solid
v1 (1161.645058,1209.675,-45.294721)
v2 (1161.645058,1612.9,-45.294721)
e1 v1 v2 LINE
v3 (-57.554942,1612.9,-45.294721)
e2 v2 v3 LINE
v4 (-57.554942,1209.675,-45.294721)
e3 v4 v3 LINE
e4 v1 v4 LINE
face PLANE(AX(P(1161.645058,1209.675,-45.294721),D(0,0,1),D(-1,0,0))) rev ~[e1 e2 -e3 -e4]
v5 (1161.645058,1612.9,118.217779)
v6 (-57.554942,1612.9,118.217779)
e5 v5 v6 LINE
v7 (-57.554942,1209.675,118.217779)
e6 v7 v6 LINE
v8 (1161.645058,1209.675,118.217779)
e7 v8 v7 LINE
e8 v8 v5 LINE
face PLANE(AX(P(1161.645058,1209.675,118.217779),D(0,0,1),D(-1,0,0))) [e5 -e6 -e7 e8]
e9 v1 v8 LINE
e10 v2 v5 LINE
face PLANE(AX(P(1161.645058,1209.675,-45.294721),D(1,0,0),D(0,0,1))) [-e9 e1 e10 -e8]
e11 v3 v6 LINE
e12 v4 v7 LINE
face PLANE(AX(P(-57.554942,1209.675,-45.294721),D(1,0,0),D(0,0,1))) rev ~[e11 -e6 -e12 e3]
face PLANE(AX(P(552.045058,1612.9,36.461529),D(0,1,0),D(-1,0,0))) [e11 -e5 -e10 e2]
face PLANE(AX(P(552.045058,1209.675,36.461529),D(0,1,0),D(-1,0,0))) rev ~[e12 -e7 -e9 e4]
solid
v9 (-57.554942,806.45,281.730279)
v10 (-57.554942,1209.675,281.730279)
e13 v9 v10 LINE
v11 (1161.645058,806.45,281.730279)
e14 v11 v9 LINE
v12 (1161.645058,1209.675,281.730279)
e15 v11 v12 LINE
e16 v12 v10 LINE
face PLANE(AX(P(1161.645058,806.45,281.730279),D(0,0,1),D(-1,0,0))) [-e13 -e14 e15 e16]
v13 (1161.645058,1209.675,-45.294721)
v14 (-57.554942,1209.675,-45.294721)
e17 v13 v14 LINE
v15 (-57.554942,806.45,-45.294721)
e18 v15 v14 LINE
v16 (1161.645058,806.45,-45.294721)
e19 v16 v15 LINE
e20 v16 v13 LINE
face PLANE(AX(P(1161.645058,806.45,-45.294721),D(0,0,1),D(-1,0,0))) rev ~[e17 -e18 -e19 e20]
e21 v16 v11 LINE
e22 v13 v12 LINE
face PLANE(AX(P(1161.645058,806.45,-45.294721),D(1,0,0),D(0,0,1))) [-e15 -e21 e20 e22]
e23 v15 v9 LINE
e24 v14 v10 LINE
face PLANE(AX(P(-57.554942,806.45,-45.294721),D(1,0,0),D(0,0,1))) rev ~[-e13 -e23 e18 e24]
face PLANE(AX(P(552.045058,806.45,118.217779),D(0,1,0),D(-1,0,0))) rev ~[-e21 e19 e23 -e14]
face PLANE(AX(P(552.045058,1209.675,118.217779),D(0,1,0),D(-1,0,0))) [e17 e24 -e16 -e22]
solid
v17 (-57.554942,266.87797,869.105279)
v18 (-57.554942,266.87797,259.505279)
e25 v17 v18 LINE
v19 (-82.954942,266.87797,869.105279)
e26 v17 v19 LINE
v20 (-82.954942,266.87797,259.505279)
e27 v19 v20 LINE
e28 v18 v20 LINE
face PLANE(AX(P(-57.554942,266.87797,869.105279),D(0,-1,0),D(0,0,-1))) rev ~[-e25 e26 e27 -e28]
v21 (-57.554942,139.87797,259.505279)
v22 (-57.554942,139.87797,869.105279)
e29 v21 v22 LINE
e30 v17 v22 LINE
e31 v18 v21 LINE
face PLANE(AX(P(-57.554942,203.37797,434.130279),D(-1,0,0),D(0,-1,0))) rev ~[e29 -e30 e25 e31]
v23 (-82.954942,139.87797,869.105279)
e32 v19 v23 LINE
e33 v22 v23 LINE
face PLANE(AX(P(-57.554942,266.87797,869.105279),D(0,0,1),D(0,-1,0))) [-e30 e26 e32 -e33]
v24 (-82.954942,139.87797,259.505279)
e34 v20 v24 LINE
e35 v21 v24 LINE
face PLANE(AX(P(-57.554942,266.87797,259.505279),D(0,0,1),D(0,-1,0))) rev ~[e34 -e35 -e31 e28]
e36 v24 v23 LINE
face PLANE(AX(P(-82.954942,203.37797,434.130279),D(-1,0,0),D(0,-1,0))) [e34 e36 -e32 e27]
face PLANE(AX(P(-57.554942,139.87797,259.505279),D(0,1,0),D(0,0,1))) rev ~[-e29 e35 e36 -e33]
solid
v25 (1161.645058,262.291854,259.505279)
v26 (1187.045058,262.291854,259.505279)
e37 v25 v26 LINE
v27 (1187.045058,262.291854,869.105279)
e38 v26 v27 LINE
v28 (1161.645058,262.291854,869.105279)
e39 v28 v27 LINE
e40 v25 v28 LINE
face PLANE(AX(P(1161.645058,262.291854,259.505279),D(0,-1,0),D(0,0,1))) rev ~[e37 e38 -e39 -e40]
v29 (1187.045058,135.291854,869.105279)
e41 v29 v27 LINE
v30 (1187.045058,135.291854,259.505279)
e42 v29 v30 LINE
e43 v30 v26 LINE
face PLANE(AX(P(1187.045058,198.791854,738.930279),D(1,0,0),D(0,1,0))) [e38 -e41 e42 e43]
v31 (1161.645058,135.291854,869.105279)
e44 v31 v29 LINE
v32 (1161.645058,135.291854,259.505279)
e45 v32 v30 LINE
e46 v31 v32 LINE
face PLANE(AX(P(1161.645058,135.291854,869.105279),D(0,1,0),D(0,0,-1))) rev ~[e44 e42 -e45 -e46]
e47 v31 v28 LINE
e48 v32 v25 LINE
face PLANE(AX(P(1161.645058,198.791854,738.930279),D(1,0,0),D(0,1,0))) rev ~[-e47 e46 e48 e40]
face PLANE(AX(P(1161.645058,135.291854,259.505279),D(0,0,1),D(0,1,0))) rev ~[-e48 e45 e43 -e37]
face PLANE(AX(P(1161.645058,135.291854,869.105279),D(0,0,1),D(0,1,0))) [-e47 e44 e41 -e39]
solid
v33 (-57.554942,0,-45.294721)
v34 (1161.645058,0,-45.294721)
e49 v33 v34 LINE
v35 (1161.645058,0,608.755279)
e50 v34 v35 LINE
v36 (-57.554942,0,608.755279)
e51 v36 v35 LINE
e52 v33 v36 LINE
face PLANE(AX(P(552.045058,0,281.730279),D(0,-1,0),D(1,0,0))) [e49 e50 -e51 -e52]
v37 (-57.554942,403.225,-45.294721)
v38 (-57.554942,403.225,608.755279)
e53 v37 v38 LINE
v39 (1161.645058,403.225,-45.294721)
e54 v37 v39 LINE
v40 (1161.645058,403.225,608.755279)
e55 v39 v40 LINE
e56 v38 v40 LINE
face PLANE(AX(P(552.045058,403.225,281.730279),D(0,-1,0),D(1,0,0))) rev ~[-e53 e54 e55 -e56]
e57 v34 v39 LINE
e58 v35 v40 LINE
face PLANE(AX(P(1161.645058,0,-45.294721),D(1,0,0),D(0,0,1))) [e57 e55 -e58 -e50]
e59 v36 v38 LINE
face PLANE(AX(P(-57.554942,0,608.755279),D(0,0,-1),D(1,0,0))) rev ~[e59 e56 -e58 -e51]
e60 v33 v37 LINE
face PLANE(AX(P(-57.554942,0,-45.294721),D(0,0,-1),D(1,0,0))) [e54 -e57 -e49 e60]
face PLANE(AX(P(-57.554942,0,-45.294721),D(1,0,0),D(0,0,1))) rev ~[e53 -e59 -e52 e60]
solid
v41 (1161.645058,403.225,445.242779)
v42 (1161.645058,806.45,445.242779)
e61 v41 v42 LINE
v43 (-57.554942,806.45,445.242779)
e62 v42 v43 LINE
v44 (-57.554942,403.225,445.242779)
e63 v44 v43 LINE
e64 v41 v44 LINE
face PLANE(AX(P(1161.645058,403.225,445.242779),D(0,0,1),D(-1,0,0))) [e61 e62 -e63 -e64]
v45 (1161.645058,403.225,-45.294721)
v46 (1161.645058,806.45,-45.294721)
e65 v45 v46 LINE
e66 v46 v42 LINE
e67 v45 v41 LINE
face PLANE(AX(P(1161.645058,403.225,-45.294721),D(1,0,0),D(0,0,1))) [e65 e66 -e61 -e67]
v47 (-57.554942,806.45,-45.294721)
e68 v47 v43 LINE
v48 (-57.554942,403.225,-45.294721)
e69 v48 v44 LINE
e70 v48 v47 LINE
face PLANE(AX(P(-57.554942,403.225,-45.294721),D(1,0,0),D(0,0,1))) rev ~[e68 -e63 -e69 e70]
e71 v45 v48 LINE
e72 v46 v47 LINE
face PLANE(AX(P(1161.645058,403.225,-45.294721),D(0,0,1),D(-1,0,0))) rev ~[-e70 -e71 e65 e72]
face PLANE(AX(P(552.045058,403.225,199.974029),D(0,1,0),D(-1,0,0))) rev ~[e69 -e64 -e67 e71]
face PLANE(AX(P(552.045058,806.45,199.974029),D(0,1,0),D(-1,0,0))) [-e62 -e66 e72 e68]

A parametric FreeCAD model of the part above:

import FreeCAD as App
import Part
import Sketcher
Q = App.Units.Quantity


def add_polygon(sketch, points):
    """Adds a closed chain of lines whose ends are joined by coincident constraints."""
    first, n = sketch.GeometryCount, len(points)
    for a, b in zip(points, points[1:] + points[:1]):
        sketch.addGeometry(Part.LineSegment(App.Vector(*a, 0), App.Vector(*b, 0)), False)
    for i in range(n):
        sketch.addConstraint(Sketcher.Constraint("Coincident", first + i, 2, first + (i + 1) % n, 1))

doc = App.newDocument("Part")
params = doc.addObject("Spreadsheet::Sheet", "Params")
for row, (alias, value) in enumerate([
    ("sketch1_width", "48 in"),
    ("sketch1_height", "25.75 in"),
    ("pad1_length", "15.875 in"),
    ("sketch2_width", "48 in"),
    ("sketch2_height", "19.3125 in"),
    ("pad2_length", "15.875 in"),
    ("sketch3_width", "48 in"),
    ("sketch3_height", "12.875 in"),
    ("pad3_length", "15.875 in"),
    ("sketch4_width", "48 in"),
    ("sketch4_height", "6.4375 in"),
    ("pad4_length", "15.875 in"),
    ("sketch5_width", "5 in"),
    ("sketch5_height", "24 in"),
    ("pad5_length", "1 in"),
    ("sketch6_width", "5 in"),
    ("sketch6_height", "24 in"),
    ("pad6_length", "1 in"),
], start=1):
    params.set(f"A{row}", alias)
    params.set(f"B{row}", "=" + value)
    params.setAlias(f"B{row}", alias)

body = doc.addObject("PartDesign::Body", "Body")

# Sketch on XZ plane
sketch1 = body.newObject("Sketcher::SketchObject", "Sketch")
sketch1.AttachmentSupport = (doc.getObject("XZ_Plane"), [""])
sketch1.MapMode = "FlatFace"
add_polygon(sketch1, [(-58, 609), (-58, -45), (1162, -45), (1162, 609)])  # lines 0-3
sketch1.addConstraint([
    Sketcher.Constraint("Vertical", 0),
    Sketcher.Constraint("Horizontal", 1),
    Sketcher.Constraint("Vertical", 2),
    Sketcher.Constraint("Horizontal", 3),
    Sketcher.Constraint("DistanceX", 1, 1, 1, 2, Q("48 in")),
    Sketcher.Constraint("DistanceY", 0, 2, 0, 1, Q("25.75 in")),
    Sketcher.Constraint("DistanceX", 0, 2, -1, 1, Q("57.554942 mm")),
    Sketcher.Constraint("DistanceY", 0, 2, -1, 1, Q("45.294721 mm")),
])
sketch1.setExpression("Constraints[8]", "Params.sketch1_width")
sketch1.setExpression("Constraints[9]", "Params.sketch1_height")
pad1 = body.newObject("PartDesign::Pad", "Pad")
pad1.Profile = sketch1
pad1.setExpression("Length", "Params.pad1_length")
pad1.Reversed = True
body2 = doc.addObject("PartDesign::Body", "Body001")

# Sketch on XZ plane
sketch2 = body2.newObject("Sketcher::SketchObject", "Sketch001")
sketch2.AttachmentSupport = (doc.getObject("XZ_Plane001"), [""])
sketch2.MapMode = "FlatFace"
sketch2.AttachmentOffset = App.Placement(App.Vector(0, 0, -15.875 * 25.4), App.Rotation())
add_polygon(sketch2, [(1162, 445), (1162, -45), (-58, -45), (-58, 445)])  # lines 0-3
sketch2.addConstraint([
    Sketcher.Constraint("Vertical", 0),
    Sketcher.Constraint("Horizontal", 1),
    Sketcher.Constraint("Vertical", 2),
    Sketcher.Constraint("Horizontal", 3),
    Sketcher.Constraint("DistanceX", 1, 2, 1, 1, Q("48 in")),
    Sketcher.Constraint("DistanceY", 0, 2, 0, 1, Q("19.3125 in")),
    Sketcher.Constraint("DistanceX", -1, 1, 0, 2, Q("1161.645058 mm")),
    Sketcher.Constraint("DistanceY", 0, 2, -1, 1, Q("45.294721 mm")),
])
sketch2.setExpression("Constraints[8]", "Params.sketch2_width")
sketch2.setExpression("Constraints[9]", "Params.sketch2_height")
pad2 = body2.newObject("PartDesign::Pad", "Pad001")
pad2.Profile = sketch2
pad2.setExpression("Length", "Params.pad2_length")
pad2.Reversed = True
body3 = doc.addObject("PartDesign::Body", "Body002")

# Sketch on XZ plane
sketch3 = body3.newObject("Sketcher::SketchObject", "Sketch002")
sketch3.AttachmentSupport = (doc.getObject("XZ_Plane002"), [""])
sketch3.MapMode = "FlatFace"
sketch3.AttachmentOffset = App.Placement(App.Vector(0, 0, -31.75 * 25.4), App.Rotation())
add_polygon(sketch3, [(1162, 282), (1162, -45), (-58, -45), (-58, 282)])  # lines 0-3
sketch3.addConstraint([
    Sketcher.Constraint("Vertical", 0),
    Sketcher.Constraint("Horizontal", 1),
    Sketcher.Constraint("Vertical", 2),
    Sketcher.Constraint("Horizontal", 3),
    Sketcher.Constraint("DistanceX", 1, 2, 1, 1, Q("48 in")),
    Sketcher.Constraint("DistanceY", 0, 2, 0, 1, Q("12.875 in")),
    Sketcher.Constraint("DistanceX", -1, 1, 0, 2, Q("1161.645058 mm")),
    Sketcher.Constraint("DistanceY", 0, 2, -1, 1, Q("45.294721 mm")),
])
sketch3.setExpression("Constraints[8]", "Params.sketch3_width")
sketch3.setExpression("Constraints[9]", "Params.sketch3_height")
pad3 = body3.newObject("PartDesign::Pad", "Pad002")
pad3.Profile = sketch3
pad3.setExpression("Length", "Params.pad3_length")
pad3.Reversed = True
body4 = doc.addObject("PartDesign::Body", "Body003")

# Sketch on XZ plane
sketch4 = body4.newObject("Sketcher::SketchObject", "Sketch003")
sketch4.AttachmentSupport = (doc.getObject("XZ_Plane003"), [""])
sketch4.MapMode = "FlatFace"
sketch4.AttachmentOffset = App.Placement(App.Vector(0, 0, -47.625 * 25.4), App.Rotation())
add_polygon(sketch4, [(1162, 118), (1162, -45), (-58, -45), (-58, 118)])  # lines 0-3
sketch4.addConstraint([
    Sketcher.Constraint("Vertical", 0),
    Sketcher.Constraint("Horizontal", 1),
    Sketcher.Constraint("Vertical", 2),
    Sketcher.Constraint("Horizontal", 3),
    Sketcher.Constraint("DistanceX", 1, 2, 1, 1, Q("48 in")),
    Sketcher.Constraint("DistanceY", 0, 2, 0, 1, Q("6.4375 in")),
    Sketcher.Constraint("DistanceX", -1, 1, 0, 2, Q("1161.645058 mm")),
    Sketcher.Constraint("DistanceY", 0, 2, -1, 1, Q("45.294721 mm")),
])
sketch4.setExpression("Constraints[8]", "Params.sketch4_width")
sketch4.setExpression("Constraints[9]", "Params.sketch4_height")
pad4 = body4.newObject("PartDesign::Pad", "Pad003")
pad4.Profile = sketch4
pad4.setExpression("Length", "Params.pad4_length")
pad4.Reversed = True
body5 = doc.addObject("PartDesign::Body", "Body004")

# Sketch on YZ plane
sketch5 = body5.newObject("Sketcher::SketchObject", "Sketch004")
sketch5.AttachmentSupport = (doc.getObject("YZ_Plane004"), [""])
sketch5.MapMode = "FlatFace"
sketch5.AttachmentOffset = App.Placement(App.Vector(0, 0, 1161.645058), App.Rotation())
add_polygon(sketch5, [(135, 869), (135, 260), (262, 260), (262, 869)])  # lines 0-3
sketch5.addConstraint([
    Sketcher.Constraint("Vertical", 0),
    Sketcher.Constraint("Horizontal", 1),
    Sketcher.Constraint("Vertical", 2),
    Sketcher.Constraint("Horizontal", 3),
    Sketcher.Constraint("DistanceX", 1, 1, 1, 2, Q("5 in")),
    Sketcher.Constraint("DistanceY", 0, 2, 0, 1, Q("24 in")),
    Sketcher.Constraint("DistanceY", -1, 1, 0, 2, Q("259.505279 mm")),
    Sketcher.Constraint("DistanceX", -1, 1, 0, 2, Q("135.291854 mm")),
])
sketch5.setExpression("Constraints[8]", "Params.sketch5_width")
sketch5.setExpression("Constraints[9]", "Params.sketch5_height")
pad5 = body5.newObject("PartDesign::Pad", "Pad004")
pad5.Profile = sketch5
pad5.setExpression("Length", "Params.pad5_length")
body6 = doc.addObject("PartDesign::Body", "Body005")

# Sketch on YZ plane
sketch6 = body6.newObject("Sketcher::SketchObject", "Sketch005")
sketch6.AttachmentSupport = (doc.getObject("YZ_Plane005"), [""])
sketch6.MapMode = "FlatFace"
sketch6.AttachmentOffset = App.Placement(App.Vector(0, 0, -57.554942), App.Rotation())
add_polygon(sketch6, [(267, 260), (140, 260), (140, 869), (267, 869)])  # lines 0-3
sketch6.addConstraint([
    Sketcher.Constraint("Horizontal", 0),
    Sketcher.Constraint("Vertical", 1),
    Sketcher.Constraint("Horizontal", 2),
    Sketcher.Constraint("Vertical", 3),
    Sketcher.Constraint("DistanceX", 0, 2, 0, 1, Q("5 in")),
    Sketcher.Constraint("DistanceY", 1, 1, 1, 2, Q("24 in")),
    Sketcher.Constraint("DistanceX", -1, 1, 0, 2, Q("139.87797 mm")),
    Sketcher.Constraint("DistanceY", -1, 1, 0, 2, Q("259.505279 mm")),
])
sketch6.setExpression("Constraints[8]", "Params.sketch6_width")
sketch6.setExpression("Constraints[9]", "Params.sketch6_height")
pad6 = body6.newObject("PartDesign::Pad", "Pad005")
pad6.Profile = sketch6
pad6.setExpression("Length", "Params.pad6_length")
pad6.Reversed = True

doc.recompute()
